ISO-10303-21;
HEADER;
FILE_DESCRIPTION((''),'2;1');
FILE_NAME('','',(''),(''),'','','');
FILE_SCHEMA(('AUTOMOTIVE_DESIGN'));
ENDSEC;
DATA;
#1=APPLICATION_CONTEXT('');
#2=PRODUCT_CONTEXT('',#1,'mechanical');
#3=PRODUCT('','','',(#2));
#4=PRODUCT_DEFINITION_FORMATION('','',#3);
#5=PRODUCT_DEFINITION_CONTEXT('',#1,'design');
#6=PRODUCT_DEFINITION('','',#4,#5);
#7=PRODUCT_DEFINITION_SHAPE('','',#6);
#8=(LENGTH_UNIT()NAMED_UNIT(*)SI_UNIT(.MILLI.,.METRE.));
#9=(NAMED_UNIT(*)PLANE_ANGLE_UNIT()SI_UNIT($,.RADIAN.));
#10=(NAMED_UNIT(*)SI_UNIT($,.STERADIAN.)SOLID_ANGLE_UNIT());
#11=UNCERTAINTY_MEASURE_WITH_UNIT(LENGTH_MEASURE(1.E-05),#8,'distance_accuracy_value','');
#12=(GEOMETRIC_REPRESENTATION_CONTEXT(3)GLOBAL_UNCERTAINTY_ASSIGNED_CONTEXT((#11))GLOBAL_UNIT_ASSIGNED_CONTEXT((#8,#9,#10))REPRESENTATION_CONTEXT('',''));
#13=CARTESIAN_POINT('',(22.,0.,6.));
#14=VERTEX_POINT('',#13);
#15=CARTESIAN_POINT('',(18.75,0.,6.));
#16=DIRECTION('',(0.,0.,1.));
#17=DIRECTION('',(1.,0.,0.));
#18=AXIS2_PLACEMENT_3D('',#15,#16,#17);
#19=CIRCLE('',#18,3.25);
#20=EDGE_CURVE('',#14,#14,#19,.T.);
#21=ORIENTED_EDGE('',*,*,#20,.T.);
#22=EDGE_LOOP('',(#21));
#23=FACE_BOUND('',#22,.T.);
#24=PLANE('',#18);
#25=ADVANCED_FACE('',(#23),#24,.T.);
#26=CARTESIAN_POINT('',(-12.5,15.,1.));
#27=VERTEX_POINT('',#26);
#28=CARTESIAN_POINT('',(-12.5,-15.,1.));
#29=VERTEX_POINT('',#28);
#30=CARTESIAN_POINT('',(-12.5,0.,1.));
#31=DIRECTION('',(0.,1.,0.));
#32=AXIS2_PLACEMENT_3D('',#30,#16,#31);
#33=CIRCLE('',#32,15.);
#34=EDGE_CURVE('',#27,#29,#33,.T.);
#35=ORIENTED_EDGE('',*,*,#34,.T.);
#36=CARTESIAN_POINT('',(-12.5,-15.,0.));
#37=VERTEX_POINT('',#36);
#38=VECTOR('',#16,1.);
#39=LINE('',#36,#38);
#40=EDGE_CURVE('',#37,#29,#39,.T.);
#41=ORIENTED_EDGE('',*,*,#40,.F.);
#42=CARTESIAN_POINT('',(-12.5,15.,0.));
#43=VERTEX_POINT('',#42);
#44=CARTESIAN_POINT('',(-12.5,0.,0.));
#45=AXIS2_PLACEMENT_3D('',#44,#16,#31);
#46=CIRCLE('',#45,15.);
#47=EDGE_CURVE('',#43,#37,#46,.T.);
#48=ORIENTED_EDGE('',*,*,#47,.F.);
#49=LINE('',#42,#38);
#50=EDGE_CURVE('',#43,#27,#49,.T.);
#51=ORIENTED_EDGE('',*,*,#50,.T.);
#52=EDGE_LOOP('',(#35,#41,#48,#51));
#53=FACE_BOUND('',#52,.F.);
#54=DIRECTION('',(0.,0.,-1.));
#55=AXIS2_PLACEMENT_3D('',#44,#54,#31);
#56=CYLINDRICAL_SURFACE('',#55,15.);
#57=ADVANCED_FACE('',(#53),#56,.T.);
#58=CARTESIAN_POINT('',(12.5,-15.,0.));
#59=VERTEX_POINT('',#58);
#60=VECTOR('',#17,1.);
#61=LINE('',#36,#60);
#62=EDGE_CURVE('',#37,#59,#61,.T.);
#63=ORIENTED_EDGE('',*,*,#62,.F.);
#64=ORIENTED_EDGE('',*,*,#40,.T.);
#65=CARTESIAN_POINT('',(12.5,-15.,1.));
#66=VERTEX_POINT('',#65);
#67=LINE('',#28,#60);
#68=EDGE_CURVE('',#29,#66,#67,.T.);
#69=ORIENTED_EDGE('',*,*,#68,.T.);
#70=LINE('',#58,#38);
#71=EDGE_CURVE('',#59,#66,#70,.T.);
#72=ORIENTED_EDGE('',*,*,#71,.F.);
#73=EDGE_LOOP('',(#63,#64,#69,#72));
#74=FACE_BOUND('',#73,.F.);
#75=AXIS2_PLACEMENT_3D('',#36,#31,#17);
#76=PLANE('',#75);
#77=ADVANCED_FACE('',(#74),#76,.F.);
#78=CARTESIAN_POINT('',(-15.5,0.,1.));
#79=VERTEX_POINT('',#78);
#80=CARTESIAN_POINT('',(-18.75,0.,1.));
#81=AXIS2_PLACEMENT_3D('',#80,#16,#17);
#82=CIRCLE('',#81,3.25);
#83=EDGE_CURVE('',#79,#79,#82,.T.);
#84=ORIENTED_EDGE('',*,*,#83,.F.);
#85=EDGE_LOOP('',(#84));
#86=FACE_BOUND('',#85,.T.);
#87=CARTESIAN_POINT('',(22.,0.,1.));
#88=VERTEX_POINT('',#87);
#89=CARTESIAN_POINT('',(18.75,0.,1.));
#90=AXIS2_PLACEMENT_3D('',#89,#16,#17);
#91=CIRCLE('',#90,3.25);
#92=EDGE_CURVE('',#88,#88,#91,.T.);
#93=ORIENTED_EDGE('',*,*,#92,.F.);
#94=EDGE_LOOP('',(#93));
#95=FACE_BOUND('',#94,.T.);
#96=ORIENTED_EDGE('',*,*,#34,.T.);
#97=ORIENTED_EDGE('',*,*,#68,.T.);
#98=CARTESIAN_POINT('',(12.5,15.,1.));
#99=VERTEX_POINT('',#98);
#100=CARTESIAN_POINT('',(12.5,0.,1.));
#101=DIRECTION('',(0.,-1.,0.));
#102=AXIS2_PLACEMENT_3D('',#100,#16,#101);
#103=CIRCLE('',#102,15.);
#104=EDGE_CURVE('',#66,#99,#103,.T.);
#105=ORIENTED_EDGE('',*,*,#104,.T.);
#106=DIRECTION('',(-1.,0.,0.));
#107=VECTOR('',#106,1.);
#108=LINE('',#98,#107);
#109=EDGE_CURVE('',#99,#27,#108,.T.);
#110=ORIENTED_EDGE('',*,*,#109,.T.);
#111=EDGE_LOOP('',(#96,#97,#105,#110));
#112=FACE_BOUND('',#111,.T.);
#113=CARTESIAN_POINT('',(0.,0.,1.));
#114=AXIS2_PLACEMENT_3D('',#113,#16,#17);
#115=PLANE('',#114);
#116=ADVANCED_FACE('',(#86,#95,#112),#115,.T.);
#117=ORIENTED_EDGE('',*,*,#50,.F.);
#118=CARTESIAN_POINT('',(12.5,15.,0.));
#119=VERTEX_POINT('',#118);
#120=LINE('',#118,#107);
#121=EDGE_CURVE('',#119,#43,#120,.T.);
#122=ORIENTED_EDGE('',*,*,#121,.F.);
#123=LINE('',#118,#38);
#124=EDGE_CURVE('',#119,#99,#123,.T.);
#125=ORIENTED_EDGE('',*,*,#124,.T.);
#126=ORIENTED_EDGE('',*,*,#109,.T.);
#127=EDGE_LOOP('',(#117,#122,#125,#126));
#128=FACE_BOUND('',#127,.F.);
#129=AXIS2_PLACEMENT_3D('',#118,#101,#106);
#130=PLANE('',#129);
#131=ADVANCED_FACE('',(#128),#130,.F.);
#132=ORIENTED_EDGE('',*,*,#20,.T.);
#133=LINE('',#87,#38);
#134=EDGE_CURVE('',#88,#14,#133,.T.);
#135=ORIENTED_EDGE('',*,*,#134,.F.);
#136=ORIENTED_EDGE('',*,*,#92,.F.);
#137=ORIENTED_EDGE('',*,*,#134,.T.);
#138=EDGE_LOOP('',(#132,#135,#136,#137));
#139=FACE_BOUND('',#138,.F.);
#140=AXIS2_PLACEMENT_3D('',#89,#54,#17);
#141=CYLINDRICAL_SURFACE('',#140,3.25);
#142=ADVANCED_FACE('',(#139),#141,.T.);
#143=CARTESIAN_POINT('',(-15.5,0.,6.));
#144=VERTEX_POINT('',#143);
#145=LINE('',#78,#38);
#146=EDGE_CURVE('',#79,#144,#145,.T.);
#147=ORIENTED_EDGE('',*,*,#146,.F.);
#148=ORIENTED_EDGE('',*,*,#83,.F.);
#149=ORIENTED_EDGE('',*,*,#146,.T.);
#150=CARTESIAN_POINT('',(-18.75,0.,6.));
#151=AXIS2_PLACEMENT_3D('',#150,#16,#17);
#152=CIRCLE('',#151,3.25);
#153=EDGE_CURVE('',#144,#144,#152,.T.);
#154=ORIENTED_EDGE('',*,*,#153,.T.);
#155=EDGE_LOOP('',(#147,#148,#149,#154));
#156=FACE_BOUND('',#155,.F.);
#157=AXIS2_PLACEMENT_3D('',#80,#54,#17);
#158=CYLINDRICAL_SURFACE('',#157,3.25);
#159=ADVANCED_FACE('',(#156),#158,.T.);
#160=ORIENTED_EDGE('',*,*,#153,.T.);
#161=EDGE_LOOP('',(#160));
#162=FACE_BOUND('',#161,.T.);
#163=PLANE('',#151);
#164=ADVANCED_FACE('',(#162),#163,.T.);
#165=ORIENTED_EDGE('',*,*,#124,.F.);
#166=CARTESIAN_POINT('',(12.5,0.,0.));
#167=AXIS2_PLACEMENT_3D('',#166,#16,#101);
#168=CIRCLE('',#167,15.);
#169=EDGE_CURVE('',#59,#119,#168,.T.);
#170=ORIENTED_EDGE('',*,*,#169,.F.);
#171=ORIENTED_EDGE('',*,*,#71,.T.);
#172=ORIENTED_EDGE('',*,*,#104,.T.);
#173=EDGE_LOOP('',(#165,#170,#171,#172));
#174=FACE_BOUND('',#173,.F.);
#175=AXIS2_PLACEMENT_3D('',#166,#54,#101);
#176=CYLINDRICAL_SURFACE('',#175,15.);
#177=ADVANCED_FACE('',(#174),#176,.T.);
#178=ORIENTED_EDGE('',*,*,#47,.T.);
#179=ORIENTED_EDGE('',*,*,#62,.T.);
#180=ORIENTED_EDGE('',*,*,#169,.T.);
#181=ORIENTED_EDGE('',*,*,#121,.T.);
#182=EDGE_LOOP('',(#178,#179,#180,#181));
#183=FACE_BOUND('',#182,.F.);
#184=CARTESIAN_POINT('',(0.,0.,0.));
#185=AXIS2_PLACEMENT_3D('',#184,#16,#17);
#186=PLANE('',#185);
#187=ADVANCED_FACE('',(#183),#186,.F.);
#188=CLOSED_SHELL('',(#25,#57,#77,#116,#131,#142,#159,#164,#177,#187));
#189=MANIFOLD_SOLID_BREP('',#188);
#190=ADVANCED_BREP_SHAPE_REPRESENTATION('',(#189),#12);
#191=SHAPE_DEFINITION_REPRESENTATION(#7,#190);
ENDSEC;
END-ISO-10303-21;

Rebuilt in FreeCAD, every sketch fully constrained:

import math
import FreeCAD as App
import Part
import Sketcher
Q = App.Units.Quantity

doc = App.newDocument("Part")
params = doc.addObject("Spreadsheet::Sheet", "Params")
for row, (alias, value) in enumerate([
    ("sketch1_radius", "15 mm"),
    ("sketch1_width", "25 mm"),
    ("pad1_length", "1 mm"),
    ("sketch2_diameter", "6.5 mm"),
    ("pad2_length", "5 mm"),
], start=1):
    params.set(f"A{row}", alias)
    params.set(f"B{row}", "=" + value)
    params.setAlias(f"B{row}", alias)

body = doc.addObject("PartDesign::Body", "Body")

# Sketch on XY plane
sketch1 = body.newObject("Sketcher::SketchObject", "Sketch")
sketch1.AttachmentSupport = (doc.getObject("XY_Plane"), [""])
sketch1.MapMode = "FlatFace"
sketch1.addGeometry([
    Part.LineSegment(App.Vector(12, 15, 0), App.Vector(-12, 15, 0)),
    Part.ArcOfCircle(Part.Circle(App.Vector(-12, 0, 0), App.Vector(0, 0, 1), 15), math.radians(90), math.radians(270)),
    Part.LineSegment(App.Vector(-12, -15, 0), App.Vector(12, -15, 0)),
    Part.ArcOfCircle(Part.Circle(App.Vector(12, 0, 0), App.Vector(0, 0, 1), 15), math.radians(-90), math.radians(90)),
], False)
sketch1.addConstraint([
    Sketcher.Constraint("Tangent", 0, 2, 1, 1),
    Sketcher.Constraint("Tangent", 1, 2, 2, 1),
    Sketcher.Constraint("Tangent", 2, 2, 3, 1),
    Sketcher.Constraint("Tangent", 3, 2, 0, 1),
    Sketcher.Constraint("Horizontal", 0),
    Sketcher.Constraint("Horizontal", 2),
    Sketcher.Constraint("Symmetric", 1, 3, 3, 3, -1, 1),
    Sketcher.Constraint("Radius", 1, Q("15 mm")),
    Sketcher.Constraint("DistanceX", 0, 2, 0, 1, Q("25 mm")),
])
sketch1.setExpression("Constraints[7]", "Params.sketch1_radius")
sketch1.setExpression("Constraints[8]", "Params.sketch1_width")
pad1 = body.newObject("PartDesign::Pad", "Pad")
pad1.Profile = sketch1
pad1.setExpression("Length", "Params.pad1_length")

# Sketch on XY plane
sketch2 = body.newObject("Sketcher::SketchObject", "Sketch001")
sketch2.AttachmentSupport = (doc.getObject("XY_Plane"), [""])
sketch2.MapMode = "FlatFace"
sketch2.AttachmentOffset = App.Placement(App.Vector(0, 0, 1), App.Rotation())
sketch2.addGeometry([
    Part.Circle(App.Vector(-18.8, 0, 0), App.Vector(0, 0, 1), 3.2),
    Part.Circle(App.Vector(18.8, 0, 0), App.Vector(0, 0, 1), 3.2),
], False)
sketch2.addConstraint([
    Sketcher.Constraint("Equal", 0, 1),
    Sketcher.Constraint("Symmetric", 0, 3, 1, 3, -1, 1),
    Sketcher.Constraint("PointOnObject", 0, 3, -1),
    Sketcher.Constraint("Diameter", 0, Q("6.5 mm")),
    Sketcher.Constraint("DistanceX", 0, 3, 1, 3, Q("37.5 mm")),
])
sketch2.setExpression("Constraints[3]", "Params.sketch2_diameter")
pad2 = body.newObject("PartDesign::Pad", "Pad001")
pad2.Profile = sketch2
pad2.setExpression("Length", "Params.pad2_length")

doc.recompute()
